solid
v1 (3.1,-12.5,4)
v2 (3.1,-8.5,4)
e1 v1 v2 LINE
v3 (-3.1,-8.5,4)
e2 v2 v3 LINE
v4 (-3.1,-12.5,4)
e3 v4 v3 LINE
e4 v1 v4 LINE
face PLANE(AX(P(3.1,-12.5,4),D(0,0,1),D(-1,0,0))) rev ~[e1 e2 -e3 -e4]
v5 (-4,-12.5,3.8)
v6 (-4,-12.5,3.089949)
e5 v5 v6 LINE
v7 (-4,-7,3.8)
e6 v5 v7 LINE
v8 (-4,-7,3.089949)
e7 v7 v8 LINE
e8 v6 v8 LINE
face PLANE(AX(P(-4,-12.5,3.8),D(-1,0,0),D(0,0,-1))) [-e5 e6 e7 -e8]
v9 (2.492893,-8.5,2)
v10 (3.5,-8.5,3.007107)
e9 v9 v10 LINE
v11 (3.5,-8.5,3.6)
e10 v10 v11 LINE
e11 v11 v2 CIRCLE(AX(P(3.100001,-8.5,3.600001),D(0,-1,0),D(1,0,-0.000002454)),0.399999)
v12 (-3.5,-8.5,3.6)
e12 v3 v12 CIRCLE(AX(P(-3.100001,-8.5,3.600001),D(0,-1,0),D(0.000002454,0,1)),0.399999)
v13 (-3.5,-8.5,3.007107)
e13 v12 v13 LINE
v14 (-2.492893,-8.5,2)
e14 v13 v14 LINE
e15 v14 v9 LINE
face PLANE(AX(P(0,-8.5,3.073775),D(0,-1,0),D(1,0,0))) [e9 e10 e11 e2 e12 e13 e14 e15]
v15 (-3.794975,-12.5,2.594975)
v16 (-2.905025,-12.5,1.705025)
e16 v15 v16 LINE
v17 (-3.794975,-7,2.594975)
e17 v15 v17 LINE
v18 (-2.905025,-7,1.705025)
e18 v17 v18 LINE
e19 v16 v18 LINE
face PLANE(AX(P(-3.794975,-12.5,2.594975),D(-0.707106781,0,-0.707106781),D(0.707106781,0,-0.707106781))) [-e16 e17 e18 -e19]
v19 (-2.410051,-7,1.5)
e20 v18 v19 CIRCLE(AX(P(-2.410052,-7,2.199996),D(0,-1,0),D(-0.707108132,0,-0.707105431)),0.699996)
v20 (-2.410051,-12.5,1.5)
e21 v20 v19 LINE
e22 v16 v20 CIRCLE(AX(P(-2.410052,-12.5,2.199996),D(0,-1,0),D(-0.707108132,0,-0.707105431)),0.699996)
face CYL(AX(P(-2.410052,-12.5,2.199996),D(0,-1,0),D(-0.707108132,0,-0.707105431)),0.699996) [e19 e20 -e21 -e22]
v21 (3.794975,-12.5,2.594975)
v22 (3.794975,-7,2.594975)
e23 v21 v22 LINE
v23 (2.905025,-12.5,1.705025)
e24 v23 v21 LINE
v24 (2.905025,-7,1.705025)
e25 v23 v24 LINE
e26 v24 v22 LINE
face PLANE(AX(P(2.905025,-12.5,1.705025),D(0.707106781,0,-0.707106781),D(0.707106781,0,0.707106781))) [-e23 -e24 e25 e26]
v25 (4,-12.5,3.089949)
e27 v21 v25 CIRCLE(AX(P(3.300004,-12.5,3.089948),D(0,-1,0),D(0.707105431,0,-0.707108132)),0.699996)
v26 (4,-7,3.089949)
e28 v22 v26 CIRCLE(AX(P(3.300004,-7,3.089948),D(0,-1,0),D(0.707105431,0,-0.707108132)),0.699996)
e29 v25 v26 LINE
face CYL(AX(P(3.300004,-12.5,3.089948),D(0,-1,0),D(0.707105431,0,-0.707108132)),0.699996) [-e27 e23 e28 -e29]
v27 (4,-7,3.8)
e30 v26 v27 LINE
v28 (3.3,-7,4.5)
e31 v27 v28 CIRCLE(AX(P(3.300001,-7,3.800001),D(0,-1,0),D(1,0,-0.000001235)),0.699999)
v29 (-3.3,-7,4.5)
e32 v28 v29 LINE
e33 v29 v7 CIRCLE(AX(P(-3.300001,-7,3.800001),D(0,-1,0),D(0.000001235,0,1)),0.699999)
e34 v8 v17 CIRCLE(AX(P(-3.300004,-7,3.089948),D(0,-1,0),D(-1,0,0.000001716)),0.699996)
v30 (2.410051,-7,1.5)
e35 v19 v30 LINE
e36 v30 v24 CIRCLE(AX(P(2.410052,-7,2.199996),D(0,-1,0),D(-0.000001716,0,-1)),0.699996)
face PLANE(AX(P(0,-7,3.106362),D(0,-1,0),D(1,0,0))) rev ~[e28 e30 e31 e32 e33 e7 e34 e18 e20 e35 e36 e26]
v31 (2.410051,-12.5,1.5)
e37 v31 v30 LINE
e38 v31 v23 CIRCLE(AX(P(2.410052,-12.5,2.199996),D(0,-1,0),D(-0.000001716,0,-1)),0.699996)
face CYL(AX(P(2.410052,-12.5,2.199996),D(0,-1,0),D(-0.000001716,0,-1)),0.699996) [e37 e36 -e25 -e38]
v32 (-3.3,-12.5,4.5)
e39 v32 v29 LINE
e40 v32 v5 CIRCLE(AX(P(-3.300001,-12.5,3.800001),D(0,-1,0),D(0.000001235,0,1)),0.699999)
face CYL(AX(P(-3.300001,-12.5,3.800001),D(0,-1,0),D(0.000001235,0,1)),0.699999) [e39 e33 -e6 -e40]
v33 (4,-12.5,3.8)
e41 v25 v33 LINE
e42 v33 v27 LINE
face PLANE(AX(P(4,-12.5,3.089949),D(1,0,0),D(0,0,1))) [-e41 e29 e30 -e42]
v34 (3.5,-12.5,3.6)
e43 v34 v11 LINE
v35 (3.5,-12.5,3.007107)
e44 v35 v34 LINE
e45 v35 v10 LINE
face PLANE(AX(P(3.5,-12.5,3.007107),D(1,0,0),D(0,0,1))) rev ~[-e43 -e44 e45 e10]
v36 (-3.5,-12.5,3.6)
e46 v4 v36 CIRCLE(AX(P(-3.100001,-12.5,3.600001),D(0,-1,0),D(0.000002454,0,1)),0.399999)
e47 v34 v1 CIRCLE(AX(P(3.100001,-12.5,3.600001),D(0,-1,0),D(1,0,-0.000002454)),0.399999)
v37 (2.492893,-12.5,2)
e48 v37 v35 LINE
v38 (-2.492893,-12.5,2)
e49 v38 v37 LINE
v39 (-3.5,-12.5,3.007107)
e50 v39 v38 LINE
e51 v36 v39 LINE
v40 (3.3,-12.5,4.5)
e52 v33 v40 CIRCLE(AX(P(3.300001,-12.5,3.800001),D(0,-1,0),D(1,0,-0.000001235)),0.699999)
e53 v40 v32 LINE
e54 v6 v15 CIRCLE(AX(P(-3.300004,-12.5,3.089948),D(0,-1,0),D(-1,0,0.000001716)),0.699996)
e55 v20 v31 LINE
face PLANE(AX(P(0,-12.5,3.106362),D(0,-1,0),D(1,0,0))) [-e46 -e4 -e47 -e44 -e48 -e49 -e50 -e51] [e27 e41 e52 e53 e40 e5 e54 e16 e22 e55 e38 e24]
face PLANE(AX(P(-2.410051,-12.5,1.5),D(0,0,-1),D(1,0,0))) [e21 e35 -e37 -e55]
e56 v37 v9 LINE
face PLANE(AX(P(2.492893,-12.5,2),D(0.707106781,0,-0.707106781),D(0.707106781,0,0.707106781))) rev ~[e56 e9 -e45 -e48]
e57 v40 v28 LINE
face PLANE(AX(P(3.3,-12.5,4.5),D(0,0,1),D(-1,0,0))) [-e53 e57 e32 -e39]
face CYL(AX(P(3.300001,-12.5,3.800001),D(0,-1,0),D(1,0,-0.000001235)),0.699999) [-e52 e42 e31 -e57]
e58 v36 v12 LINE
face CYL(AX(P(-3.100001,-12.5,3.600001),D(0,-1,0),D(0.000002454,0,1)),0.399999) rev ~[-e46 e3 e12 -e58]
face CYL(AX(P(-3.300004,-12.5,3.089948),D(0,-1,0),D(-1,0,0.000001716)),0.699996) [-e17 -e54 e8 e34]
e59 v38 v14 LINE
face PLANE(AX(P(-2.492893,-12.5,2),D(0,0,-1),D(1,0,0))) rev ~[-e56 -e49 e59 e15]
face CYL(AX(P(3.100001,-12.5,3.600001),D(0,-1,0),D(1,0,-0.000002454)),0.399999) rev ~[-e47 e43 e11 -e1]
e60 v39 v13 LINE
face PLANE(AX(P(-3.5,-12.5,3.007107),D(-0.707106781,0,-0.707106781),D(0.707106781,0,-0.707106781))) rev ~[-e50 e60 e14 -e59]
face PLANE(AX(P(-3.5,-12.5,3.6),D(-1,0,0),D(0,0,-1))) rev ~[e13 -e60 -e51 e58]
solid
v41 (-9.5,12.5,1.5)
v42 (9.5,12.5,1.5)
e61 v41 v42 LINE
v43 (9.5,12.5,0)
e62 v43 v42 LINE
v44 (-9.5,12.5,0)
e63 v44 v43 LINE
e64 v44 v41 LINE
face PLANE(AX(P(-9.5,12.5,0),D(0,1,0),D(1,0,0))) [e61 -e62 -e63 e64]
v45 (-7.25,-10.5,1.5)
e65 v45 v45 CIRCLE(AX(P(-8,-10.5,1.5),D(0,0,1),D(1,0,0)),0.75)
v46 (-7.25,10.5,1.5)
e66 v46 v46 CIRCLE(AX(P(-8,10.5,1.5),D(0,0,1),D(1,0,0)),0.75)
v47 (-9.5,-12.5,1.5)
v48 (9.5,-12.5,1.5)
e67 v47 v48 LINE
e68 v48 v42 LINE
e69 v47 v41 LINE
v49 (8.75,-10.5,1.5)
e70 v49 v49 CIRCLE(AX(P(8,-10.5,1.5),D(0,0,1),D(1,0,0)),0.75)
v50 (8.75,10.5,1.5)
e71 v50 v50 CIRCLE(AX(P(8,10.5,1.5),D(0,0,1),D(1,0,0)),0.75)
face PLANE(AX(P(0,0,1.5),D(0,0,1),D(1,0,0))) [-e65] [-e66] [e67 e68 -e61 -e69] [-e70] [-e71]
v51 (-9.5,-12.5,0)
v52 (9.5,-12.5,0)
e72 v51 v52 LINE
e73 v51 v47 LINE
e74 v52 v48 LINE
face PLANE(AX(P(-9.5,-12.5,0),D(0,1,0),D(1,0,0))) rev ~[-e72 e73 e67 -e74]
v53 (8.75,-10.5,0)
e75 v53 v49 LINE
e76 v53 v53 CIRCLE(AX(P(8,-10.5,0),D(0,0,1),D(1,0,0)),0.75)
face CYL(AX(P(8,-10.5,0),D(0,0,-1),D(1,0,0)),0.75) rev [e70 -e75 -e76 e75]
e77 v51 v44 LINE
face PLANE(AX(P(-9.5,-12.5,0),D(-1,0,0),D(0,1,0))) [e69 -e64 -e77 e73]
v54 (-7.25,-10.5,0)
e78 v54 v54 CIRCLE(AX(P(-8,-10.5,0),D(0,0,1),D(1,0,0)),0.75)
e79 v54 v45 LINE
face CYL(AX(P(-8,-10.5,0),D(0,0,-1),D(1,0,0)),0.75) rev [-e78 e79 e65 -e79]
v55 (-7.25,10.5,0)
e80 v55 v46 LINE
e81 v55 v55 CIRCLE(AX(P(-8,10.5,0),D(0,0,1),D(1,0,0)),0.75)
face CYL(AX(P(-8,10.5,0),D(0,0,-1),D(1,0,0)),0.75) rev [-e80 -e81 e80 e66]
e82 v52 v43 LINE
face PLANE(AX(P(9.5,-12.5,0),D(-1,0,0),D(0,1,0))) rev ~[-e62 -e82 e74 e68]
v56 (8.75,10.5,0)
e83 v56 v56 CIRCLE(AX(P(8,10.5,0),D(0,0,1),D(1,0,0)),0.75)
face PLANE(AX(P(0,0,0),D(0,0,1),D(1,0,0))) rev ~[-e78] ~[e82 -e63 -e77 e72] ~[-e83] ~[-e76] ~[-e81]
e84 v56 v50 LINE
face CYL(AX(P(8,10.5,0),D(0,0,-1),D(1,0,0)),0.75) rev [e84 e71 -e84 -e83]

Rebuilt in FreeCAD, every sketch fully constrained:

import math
import FreeCAD as App
import Part
import Sketcher

V = App.Vector


def add_polygon(sketch, points):
    """Adds a closed chain of lines whose ends are joined by coincident constraints."""
    first, n = sketch.GeometryCount, len(points)
    for a, b in zip(points, points[1:] + points[:1]):
        sketch.addGeometry(Part.LineSegment(App.Vector(*a, 0), App.Vector(*b, 0)), False)
    for i in range(n):
        sketch.addConstraint(Sketcher.Constraint("Coincident", first + i, 2, first + (i + 1) % n, 1))

doc = App.newDocument("Part")
params = doc.addObject("Spreadsheet::Sheet", "Params")
for row, (alias, value) in enumerate([
    ("sketch1_diameter", "1.5 mm"),
    ("sketch1_width", "19 mm"),
    ("sketch1_height", "25 mm"),
    ("pad1_length", "1.5 mm"),
    ("sketch2_radius", "0.699999 mm"),
    ("sketch2_width", "6.6 mm"),
    ("pad2_length", "5.5 mm"),
    ("sketch3_radius", "0.399999 mm"),
    ("sketch3_width", "6.2 mm"),
    ("pocket1_length", "4 mm"),
], start=1):
    params.set(f"A{row}", alias)
    params.set(f"B{row}", "=" + value)
    params.setAlias(f"B{row}", alias)

body = doc.addObject("PartDesign::Body", "Body")

sketch1 = body.newObject("Sketcher::SketchObject", "Sketch")
sketch1.AttachmentSupport = (doc.getObject("XY_Plane"), [""])
sketch1.MapMode = "FlatFace"
add_polygon(sketch1, [(-9.5, 12.5), (-9.5, -12.5), (9.5, -12.5), (9.5, 12.5)])
sketch1.addGeometry(Part.Circle(V(-8, -10.5, 0), V(0, 0, 1), 0.75), False)
sketch1.addGeometry(Part.Circle(V(8, -10.5, 0), V(0, 0, 1), 0.75), False)
sketch1.addGeometry(Part.Circle(V(-8, 10.5, 0), V(0, 0, 1), 0.75), False)
sketch1.addGeometry(Part.Circle(V(8, 10.5, 0), V(0, 0, 1), 0.75), False)
sketch1.addConstraint(Sketcher.Constraint("Vertical", 0))
sketch1.addConstraint(Sketcher.Constraint("Horizontal", 1))
sketch1.addConstraint(Sketcher.Constraint("Vertical", 2))
sketch1.addConstraint(Sketcher.Constraint("Horizontal", 3))
sketch1.addConstraint(Sketcher.Constraint("Equal", 4, 5))
sketch1.addConstraint(Sketcher.Constraint("Equal", 5, 6))
sketch1.addConstraint(Sketcher.Constraint("Equal", 6, 7))
sketch1.addConstraint(Sketcher.Constraint("Symmetric", 5, 3, 6, 3, -1, 1))
sketch1.addConstraint(Sketcher.Constraint("Symmetric", 4, 3, 7, 3, -1, 1))
sketch1.addConstraint(Sketcher.Constraint("Symmetric", 0, 2, 2, 2, -1, 1))
sketch1.addConstraint(Sketcher.Constraint("Symmetric", 4, 3, 5, 3, -2))
sketch1.addConstraint(Sketcher.Constraint("Diameter", 4, 1.5))
sketch1.addConstraint(Sketcher.Constraint("DistanceX", 1, 1, 1, 2, 19.0))
sketch1.addConstraint(Sketcher.Constraint("DistanceY", 0, 2, 0, 1, 25.0))
sketch1.addConstraint(Sketcher.Constraint("DistanceX", 4, 3, -1, 1, 8.0))
sketch1.addConstraint(Sketcher.Constraint("DistanceY", 4, 3, 6, 3, 21.0))
sketch1.setExpression("Constraints[15]", "Params.sketch1_diameter")
sketch1.setExpression("Constraints[16]", "Params.sketch1_width")
sketch1.setExpression("Constraints[17]", "Params.sketch1_height")
pad1 = body.newObject("PartDesign::Pad", "Pad")
pad1.Profile = sketch1
pad1.setExpression("Length", "Params.pad1_length")
body2 = doc.addObject("PartDesign::Body", "Body001")

sketch2 = body2.newObject("Sketcher::SketchObject", "Sketch001")
sketch2.AttachmentSupport = (doc.getObject("XZ_Plane001"), [""])
sketch2.MapMode = "FlatFace"
sketch2.AttachmentOffset = App.Placement(V(0, 0, 12.5), App.Rotation())
sketch2.addGeometry(Part.LineSegment(V(-2.410051, 1.5, 0), V(2.410051, 1.5, 0)), False)
sketch2.addGeometry(Part.ArcOfCircle(Part.Circle(V(2.410052, 2.199996, 0), V(0, 0, 1), 0.699996), math.radians(-90.000098), math.radians(-44.999891)), False)
sketch2.addGeometry(Part.LineSegment(V(2.905025, 1.705025, 0), V(3.794975, 2.594975, 0)), False)
sketch2.addGeometry(Part.ArcOfCircle(Part.Circle(V(3.300004, 3.089948, 0), V(0, 0, 1), 0.699996), math.radians(-45.000109), math.radians(0.000098)), False)
sketch2.addGeometry(Part.LineSegment(V(4, 3.089949, 0), V(4, 3.8, 0)), False)
sketch2.addGeometry(Part.ArcOfCircle(Part.Circle(V(3.300001, 3.800001, 0), V(0, 0, 1), 0.699999), math.radians(-0.000071), math.radians(90.000071)), False)
sketch2.addGeometry(Part.LineSegment(V(3.3, 4.5, 0), V(-3.3, 4.5, 0)), False)
sketch2.addGeometry(Part.ArcOfCircle(Part.Circle(V(-3.300001, 3.800001, 0), V(0, 0, 1), 0.699999), math.radians(89.999929), math.radians(180.000071)), False)
sketch2.addGeometry(Part.LineSegment(V(-4, 3.8, 0), V(-4, 3.089949, 0)), False)
sketch2.addGeometry(Part.ArcOfCircle(Part.Circle(V(-3.300004, 3.089948, 0), V(0, 0, 1), 0.699996), math.radians(179.999902), math.radians(225.000109)), False)
sketch2.addGeometry(Part.LineSegment(V(-3.794975, 2.594975, 0), V(-2.905025, 1.705025, 0)), False)
sketch2.addGeometry(Part.ArcOfCircle(Part.Circle(V(-2.410052, 2.199996, 0), V(0, 0, 1), 0.699996), math.radians(-135.000109), math.radians(-89.999902)), False)
sketch2.addConstraint(Sketcher.Constraint("Tangent", 0, 2, 1, 1))
sketch2.addConstraint(Sketcher.Constraint("Tangent", 1, 2, 2, 1))
sketch2.addConstraint(Sketcher.Constraint("Tangent", 2, 2, 3, 1))
sketch2.addConstraint(Sketcher.Constraint("Tangent", 3, 2, 4, 1))
sketch2.addConstraint(Sketcher.Constraint("Tangent", 4, 2, 5, 1))
sketch2.addConstraint(Sketcher.Constraint("Tangent", 5, 2, 6, 1))
sketch2.addConstraint(Sketcher.Constraint("Tangent", 6, 2, 7, 1))
sketch2.addConstraint(Sketcher.Constraint("Tangent", 7, 2, 8, 1))
sketch2.addConstraint(Sketcher.Constraint("Tangent", 8, 2, 9, 1))
sketch2.addConstraint(Sketcher.Constraint("Tangent", 9, 2, 10, 1))
sketch2.addConstraint(Sketcher.Constraint("Tangent", 10, 2, 11, 1))
sketch2.addConstraint(Sketcher.Constraint("Tangent", 11, 2, 0, 1))
sketch2.addConstraint(Sketcher.Constraint("Horizontal", 0))
sketch2.addConstraint(Sketcher.Constraint("Vertical", 4))
sketch2.addConstraint(Sketcher.Constraint("Horizontal", 6))
sketch2.addConstraint(Sketcher.Constraint("Vertical", 8))
sketch2.addConstraint(Sketcher.Constraint("Equal", 1, 3))
sketch2.addConstraint(Sketcher.Constraint("Equal", 5, 7))
sketch2.addConstraint(Sketcher.Constraint("Equal", 3, 9))
sketch2.addConstraint(Sketcher.Constraint("Equal", 9, 11))
sketch2.addConstraint(Sketcher.Constraint("Symmetric", 3, 3, 9, 3, -2))
sketch2.addConstraint(Sketcher.Constraint("Perpendicular", 2, 10))
sketch2.addConstraint(Sketcher.Constraint("Horizontal", 2, 2, 9, 2))
sketch2.addConstraint(Sketcher.Constraint("Radius", 5, 0.699999))
sketch2.addConstraint(Sketcher.Constraint("DistanceX", 6, 2, 6, 1, 6.6))
sketch2.addConstraint(Sketcher.Constraint("DistanceY", 0, 2, 6, 2, 3.0))
sketch2.addConstraint(Sketcher.Constraint("DistanceY", -1, 1, 5, 3, 3.800001))
sketch2.addConstraint(Sketcher.Constraint("Radius", 1, 0.699996))
sketch2.addConstraint(Sketcher.Constraint("DistanceY", 4, 1, 4, 2, 0.710051))
sketch2.setExpression("Constraints[23]", "Params.sketch2_radius")
sketch2.setExpression("Constraints[24]", "Params.sketch2_width")
pad2 = body2.newObject("PartDesign::Pad", "Pad001")
pad2.Profile = sketch2
pad2.setExpression("Length", "Params.pad2_length")
pad2.Reversed = True

sketch3 = body2.newObject("Sketcher::SketchObject", "Sketch002")
sketch3.AttachmentSupport = (doc.getObject("XZ_Plane001"), [""])
sketch3.MapMode = "FlatFace"
sketch3.AttachmentOffset = App.Placement(V(0, 0, 12.5), App.Rotation())
sketch3.addGeometry(Part.LineSegment(V(3.1, 4, 0), V(-3.1, 4, 0)), False)
sketch3.addGeometry(Part.ArcOfCircle(Part.Circle(V(-3.100001, 3.600001, 0), V(0, 0, 1), 0.399999), math.radians(89.999859), math.radians(180.000141)), False)
sketch3.addGeometry(Part.LineSegment(V(-3.5, 3.6, 0), V(-3.5, 3.007107, 0)), False)
sketch3.addGeometry(Part.LineSegment(V(-3.5, 3.007107, 0), V(-2.492893, 2, 0)), False)
sketch3.addGeometry(Part.LineSegment(V(-2.492893, 2, 0), V(2.492893, 2, 0)), False)
sketch3.addGeometry(Part.LineSegment(V(2.492893, 2, 0), V(3.5, 3.007107, 0)), False)
sketch3.addGeometry(Part.LineSegment(V(3.5, 3.007107, 0), V(3.5, 3.6, 0)), False)
sketch3.addGeometry(Part.ArcOfCircle(Part.Circle(V(3.100001, 3.600001, 0), V(0, 0, 1), 0.399999), math.radians(-0.000141), math.radians(90.000141)), False)
sketch3.addConstraint(Sketcher.Constraint("Coincident", 0, 2, 1, 1))
sketch3.addConstraint(Sketcher.Constraint("Coincident", 1, 2, 2, 1))
sketch3.addConstraint(Sketcher.Constraint("Coincident", 2, 2, 3, 1))
sketch3.addConstraint(Sketcher.Constraint("Coincident", 3, 2, 4, 1))
sketch3.addConstraint(Sketcher.Constraint("Coincident", 4, 2, 5, 1))
sketch3.addConstraint(Sketcher.Constraint("Coincident", 5, 2, 6, 1))
sketch3.addConstraint(Sketcher.Constraint("Coincident", 6, 2, 7, 1))
sketch3.addConstraint(Sketcher.Constraint("Coincident", 7, 2, 0, 1))
sketch3.addConstraint(Sketcher.Constraint("Horizontal", 0))
sketch3.addConstraint(Sketcher.Constraint("Vertical", 2))
sketch3.addConstraint(Sketcher.Constraint("Horizontal", 4))
sketch3.addConstraint(Sketcher.Constraint("Vertical", 6))
sketch3.addConstraint(Sketcher.Constraint("Equal", 1, 7))
sketch3.addConstraint(Sketcher.Constraint("Symmetric", 2, 2, 5, 2, -2))
sketch3.addConstraint(Sketcher.Constraint("Perpendicular", 3, 5))
sketch3.addConstraint(Sketcher.Constraint("Horizontal", 7, 3, 1, 2))
sketch3.addConstraint(Sketcher.Constraint("Horizontal", 1, 2, 6, 2))
sketch3.addConstraint(Sketcher.Constraint("Vertical", 1, 3, 0, 2))
sketch3.addConstraint(Sketcher.Constraint("Equal", 3, 5))
sketch3.addConstraint(Sketcher.Constraint("Radius", 1, 0.399999))
sketch3.addConstraint(Sketcher.Constraint("DistanceX", 0, 2, 0, 1, 6.2))
sketch3.addConstraint(Sketcher.Constraint("DistanceY", -1, 1, 0, 2, 4.0))
sketch3.addConstraint(Sketcher.Constraint("DistanceY", -1, 1, 3, 2, 2.0))
sketch3.addConstraint(Sketcher.Constraint("DistanceX", 1, 3, -1, 1, 3.100001))
sketch3.addConstraint(Sketcher.Constraint("DistanceX", 4, 1, 4, 2, 4.985786))
sketch3.setExpression("Constraints[19]", "Params.sketch3_radius")
sketch3.setExpression("Constraints[20]", "Params.sketch3_width")
pocket1 = body2.newObject("PartDesign::Pocket", "Pocket")
pocket1.Profile = sketch3
pocket1.setExpression("Length", "Params.pocket1_length")

doc.recompute()
